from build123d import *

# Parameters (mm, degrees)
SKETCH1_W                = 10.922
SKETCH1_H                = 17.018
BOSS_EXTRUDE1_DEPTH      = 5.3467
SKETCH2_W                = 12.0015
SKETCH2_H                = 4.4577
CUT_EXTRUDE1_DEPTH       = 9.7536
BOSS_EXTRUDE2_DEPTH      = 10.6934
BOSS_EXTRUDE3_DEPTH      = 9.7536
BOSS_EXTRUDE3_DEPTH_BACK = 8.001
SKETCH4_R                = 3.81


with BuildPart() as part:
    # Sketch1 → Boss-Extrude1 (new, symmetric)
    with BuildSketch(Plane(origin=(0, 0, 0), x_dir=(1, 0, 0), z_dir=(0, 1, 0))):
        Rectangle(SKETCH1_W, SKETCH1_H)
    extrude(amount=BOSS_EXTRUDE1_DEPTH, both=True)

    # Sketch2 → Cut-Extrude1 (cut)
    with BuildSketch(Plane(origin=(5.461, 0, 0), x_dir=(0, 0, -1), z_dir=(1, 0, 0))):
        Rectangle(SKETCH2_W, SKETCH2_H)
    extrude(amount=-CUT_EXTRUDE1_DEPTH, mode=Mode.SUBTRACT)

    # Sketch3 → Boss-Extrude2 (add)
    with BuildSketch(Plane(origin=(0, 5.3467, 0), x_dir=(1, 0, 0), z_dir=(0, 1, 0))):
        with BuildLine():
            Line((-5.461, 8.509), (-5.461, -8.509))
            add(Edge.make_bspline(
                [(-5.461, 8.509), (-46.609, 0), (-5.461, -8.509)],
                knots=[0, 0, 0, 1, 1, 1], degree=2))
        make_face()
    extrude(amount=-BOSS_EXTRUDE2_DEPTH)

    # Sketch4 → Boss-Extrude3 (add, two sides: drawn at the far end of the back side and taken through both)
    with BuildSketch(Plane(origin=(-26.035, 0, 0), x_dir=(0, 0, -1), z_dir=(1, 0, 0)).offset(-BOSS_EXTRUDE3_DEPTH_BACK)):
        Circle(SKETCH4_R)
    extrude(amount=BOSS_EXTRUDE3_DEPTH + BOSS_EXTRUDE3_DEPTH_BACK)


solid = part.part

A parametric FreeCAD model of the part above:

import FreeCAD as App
import Part
import Sketcher

V = App.Vector
Q = App.Units.Quantity

doc = App.newDocument("Part")
body = doc.addObject("PartDesign::Body", "Body")

sketch1 = doc.addObject("Sketcher::SketchObject", "Sketch")
body.addObject(sketch1)
sketch1.AttachmentSupport = (doc.XZ_Plane, [""])
sketch1.MapMode = "FlatFace"
sketch1.addGeometry(Part.LineSegment(V(-5, -9, 0), V(-5, 9, 0)), False)
sketch1.addGeometry(Part.LineSegment(V(-5, 9, 0), V(5, 9, 0)), False)
sketch1.addGeometry(Part.LineSegment(V(5, 9, 0), V(5, -9, 0)), False)
sketch1.addGeometry(Part.LineSegment(V(5, -9, 0), V(-5, -9, 0)), False)
sketch1.addConstraint(Sketcher.Constraint("Coincident", 0, 2, 1, 1))
sketch1.addConstraint(Sketcher.Constraint("Coincident", 1, 2, 2, 1))
sketch1.addConstraint(Sketcher.Constraint("Coincident", 2, 2, 3, 1))
sketch1.addConstraint(Sketcher.Constraint("Coincident", 3, 2, 0, 1))
sketch1.addConstraint(Sketcher.Constraint("Vertical", 0))
sketch1.addConstraint(Sketcher.Constraint("Horizontal", 1))
sketch1.addConstraint(Sketcher.Constraint("Vertical", 2))
sketch1.addConstraint(Sketcher.Constraint("Horizontal", 3))
sketch1.addConstraint(Sketcher.Constraint("Symmetric", 0, 2, 2, 2, -1, 1))
sketch1.addConstraint(Sketcher.Constraint("DistanceX", 1, 1, 1, 2, Q("0.43 in")))
sketch1.addConstraint(Sketcher.Constraint("DistanceY", 0, 1, 0, 2, Q("0.67 in")))
pad1 = doc.addObject("PartDesign::Pad", "Pad")
body.addObject(pad1)
pad1.Profile = sketch1
pad1.Length = Q("0.421 in")
pad1.Midplane = True

sketch2 = doc.addObject("Sketcher::SketchObject", "Sketch001")
body.addObject(sketch2)
sketch2.AttachmentSupport = (doc.YZ_Plane, [""])
sketch2.MapMode = "FlatFace"
sketch2.AttachmentOffset = App.Placement(V(0, 0, 0.215 * 25.4), App.Rotation())
sketch2.addGeometry(Part.LineSegment(V(2.2, 6, 0), V(-2.2, 6, 0)), False)
sketch2.addGeometry(Part.LineSegment(V(-2.2, 6, 0), V(-2.2, -6, 0)), False)
sketch2.addGeometry(Part.LineSegment(V(-2.2, -6, 0), V(2.2, -6, 0)), False)
sketch2.addGeometry(Part.LineSegment(V(2.2, -6, 0), V(2.2, 6, 0)), False)
sketch2.addConstraint(Sketcher.Constraint("Coincident", 0, 2, 1, 1))
sketch2.addConstraint(Sketcher.Constraint("Coincident", 1, 2, 2, 1))
sketch2.addConstraint(Sketcher.Constraint("Coincident", 2, 2, 3, 1))
sketch2.addConstraint(Sketcher.Constraint("Coincident", 3, 2, 0, 1))
sketch2.addConstraint(Sketcher.Constraint("Horizontal", 0))
sketch2.addConstraint(Sketcher.Constraint("Vertical", 1))
sketch2.addConstraint(Sketcher.Constraint("Horizontal", 2))
sketch2.addConstraint(Sketcher.Constraint("Vertical", 3))
sketch2.addConstraint(Sketcher.Constraint("Symmetric", 0, 2, 2, 2, -1, 1))
sketch2.addConstraint(Sketcher.Constraint("DistanceX", 0, 2, 0, 1, Q("0.1755 in")))
sketch2.addConstraint(Sketcher.Constraint("DistanceY", 1, 2, 1, 1, Q("0.4725 in")))
pocket1 = doc.addObject("PartDesign::Pocket", "Pocket")
body.addObject(pocket1)
pocket1.Profile = sketch2
pocket1.Length = Q("0.384 in")

sketch3 = doc.addObject("Sketcher::SketchObject", "Sketch002")
body.addObject(sketch3)
sketch3.AttachmentSupport = (doc.XZ_Plane, [""])
sketch3.MapMode = "FlatFace"
sketch3.AttachmentOffset = App.Placement(V(0, 0, -0.2105 * 25.4), App.Rotation())
sketch3.addGeometry(Part.LineSegment(V(-5.461, 8.509, 0), V(-5.461, -8.509, 0)), False)
sketch3.addGeometry(Part.BSplineCurve([V(-5.461, -8.509, 0), V(-46.609, 0, 0), V(-5.461, 8.509, 0)], [3, 3], [0, 1], False, 2, [1, 1, 1], False), False)
sketch3.addConstraint(Sketcher.Constraint("Block", 1))
sketch3.addConstraint(Sketcher.Constraint("Coincident", 0, 1, 1, 2))
sketch3.addConstraint(Sketcher.Constraint("Coincident", 1, 1, 0, 2))
pad2 = doc.addObject("PartDesign::Pad", "Pad001")
body.addObject(pad2)
pad2.Profile = sketch3
pad2.Length = Q("0.421 in")

sketch4 = doc.addObject("Sketcher::SketchObject", "Sketch003")
body.addObject(sketch4)
sketch4.AttachmentSupport = (doc.YZ_Plane, [""])
sketch4.MapMode = "FlatFace"
sketch4.AttachmentOffset = App.Placement(V(0, 0, -1.025 * 25.4), App.Rotation())
sketch4.addGeometry(Part.Circle(V(0, 0, 0), V(0, 0, 1), 3.8), False)
sketch4.addConstraint(Sketcher.Constraint("Coincident", 0, 3, -1, 1))
sketch4.addConstraint(Sketcher.Constraint("Diameter", 0, Q("0.3 in")))
pad3 = doc.addObject("PartDesign::Pad", "Pad002")
body.addObject(pad3)
pad3.Profile = sketch4
pad3.Type = "TwoLengths"
pad3.Length = Q("0.384 in")
pad3.Length2 = Q("0.315 in")

doc.recompute()
